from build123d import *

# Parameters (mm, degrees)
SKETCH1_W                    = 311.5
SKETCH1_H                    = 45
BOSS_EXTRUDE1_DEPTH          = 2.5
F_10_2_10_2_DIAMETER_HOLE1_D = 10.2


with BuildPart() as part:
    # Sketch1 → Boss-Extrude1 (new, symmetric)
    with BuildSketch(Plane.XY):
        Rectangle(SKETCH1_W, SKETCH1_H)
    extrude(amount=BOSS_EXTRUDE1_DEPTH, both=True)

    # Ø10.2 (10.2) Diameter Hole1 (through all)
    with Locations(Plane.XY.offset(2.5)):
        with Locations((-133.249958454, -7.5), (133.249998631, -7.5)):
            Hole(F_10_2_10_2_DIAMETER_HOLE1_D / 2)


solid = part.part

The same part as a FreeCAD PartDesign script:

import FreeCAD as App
import Part
import Sketcher
from FreeCAD import Vector
Q = App.Units.Quantity


def add_polygon(sketch, points):
    """Adds a closed chain of lines whose ends are joined by coincident constraints."""
    first, n = sketch.GeometryCount, len(points)
    for a, b in zip(points, points[1:] + points[:1]):
        sketch.addGeometry(Part.LineSegment(App.Vector(*a, 0), App.Vector(*b, 0)), False)
    for i in range(n):
        sketch.addConstraint(Sketcher.Constraint("Coincident", first + i, 2, first + (i + 1) % n, 1))

doc = App.newDocument("Part")
body = doc.addObject("PartDesign::Body", "Body")

# Sketch on XY plane
sketch1 = body.newObject("Sketcher::SketchObject", "Sketch")
sketch1.AttachmentSupport = (doc.getObject("XY_Plane"), [""])
sketch1.MapMode = "FlatFace"
add_polygon(sketch1, [(-156, 22), (-156, -22), (156, -22), (156, 22)])  # lines 0-3
sketch1.addConstraint([
    Sketcher.Constraint("Vertical", 0),
    Sketcher.Constraint("Horizontal", 1),
    Sketcher.Constraint("Vertical", 2),
    Sketcher.Constraint("Horizontal", 3),
    Sketcher.Constraint("Symmetric", 0, 2, 2, 2, -1, 1),
    Sketcher.Constraint("DistanceY", 0, 2, 0, 1, Q("45 mm")),
    Sketcher.Constraint("DistanceX", 1, 1, 1, 2, Q("311.5 mm")),
])
pad1 = body.newObject("PartDesign::Pad", "Pad")
pad1.Profile = sketch1
pad1.Length = 5
pad1.Midplane = True

# Sketch on XY plane
sketch2 = body.newObject("Sketcher::SketchObject", "Sketch001")
sketch2.AttachmentSupport = (doc.getObject("XY_Plane"), [""])
sketch2.MapMode = "FlatFace"
sketch2.AttachmentOffset = App.Placement(Vector(0, 0, 2.5), App.Rotation())
sketch2.addGeometry([
    Part.Circle(Vector(-133, -8, 0), Vector(0, 0, 1), 5),
    Part.Circle(Vector(133, -8, 0), Vector(0, 0, 1), 5),
], False)
sketch2.addConstraint([
    Sketcher.Constraint("Equal", 0, 1),
    Sketcher.Constraint("Horizontal", 0, 3, 1, 3),
    Sketcher.Constraint("Diameter", 0, Q("10.2 mm")),
    Sketcher.Constraint("DistanceY", 0, 3, -1, 1, Q("7.5 mm")),
    Sketcher.Constraint("DistanceX", -1, 1, 1, 3, Q("133.249999 mm")),
    Sketcher.Constraint("DistanceX", 0, 3, -1, 1, Q("133.249958 mm")),
])
doc.recompute()
hole = body.newObject("PartDesign::Hole", "Hole")
hole.Profile = sketch2
hole.ThreadType = "None"
hole.Diameter = 10.2
hole.DepthType = "ThroughAll"

doc.recompute()
